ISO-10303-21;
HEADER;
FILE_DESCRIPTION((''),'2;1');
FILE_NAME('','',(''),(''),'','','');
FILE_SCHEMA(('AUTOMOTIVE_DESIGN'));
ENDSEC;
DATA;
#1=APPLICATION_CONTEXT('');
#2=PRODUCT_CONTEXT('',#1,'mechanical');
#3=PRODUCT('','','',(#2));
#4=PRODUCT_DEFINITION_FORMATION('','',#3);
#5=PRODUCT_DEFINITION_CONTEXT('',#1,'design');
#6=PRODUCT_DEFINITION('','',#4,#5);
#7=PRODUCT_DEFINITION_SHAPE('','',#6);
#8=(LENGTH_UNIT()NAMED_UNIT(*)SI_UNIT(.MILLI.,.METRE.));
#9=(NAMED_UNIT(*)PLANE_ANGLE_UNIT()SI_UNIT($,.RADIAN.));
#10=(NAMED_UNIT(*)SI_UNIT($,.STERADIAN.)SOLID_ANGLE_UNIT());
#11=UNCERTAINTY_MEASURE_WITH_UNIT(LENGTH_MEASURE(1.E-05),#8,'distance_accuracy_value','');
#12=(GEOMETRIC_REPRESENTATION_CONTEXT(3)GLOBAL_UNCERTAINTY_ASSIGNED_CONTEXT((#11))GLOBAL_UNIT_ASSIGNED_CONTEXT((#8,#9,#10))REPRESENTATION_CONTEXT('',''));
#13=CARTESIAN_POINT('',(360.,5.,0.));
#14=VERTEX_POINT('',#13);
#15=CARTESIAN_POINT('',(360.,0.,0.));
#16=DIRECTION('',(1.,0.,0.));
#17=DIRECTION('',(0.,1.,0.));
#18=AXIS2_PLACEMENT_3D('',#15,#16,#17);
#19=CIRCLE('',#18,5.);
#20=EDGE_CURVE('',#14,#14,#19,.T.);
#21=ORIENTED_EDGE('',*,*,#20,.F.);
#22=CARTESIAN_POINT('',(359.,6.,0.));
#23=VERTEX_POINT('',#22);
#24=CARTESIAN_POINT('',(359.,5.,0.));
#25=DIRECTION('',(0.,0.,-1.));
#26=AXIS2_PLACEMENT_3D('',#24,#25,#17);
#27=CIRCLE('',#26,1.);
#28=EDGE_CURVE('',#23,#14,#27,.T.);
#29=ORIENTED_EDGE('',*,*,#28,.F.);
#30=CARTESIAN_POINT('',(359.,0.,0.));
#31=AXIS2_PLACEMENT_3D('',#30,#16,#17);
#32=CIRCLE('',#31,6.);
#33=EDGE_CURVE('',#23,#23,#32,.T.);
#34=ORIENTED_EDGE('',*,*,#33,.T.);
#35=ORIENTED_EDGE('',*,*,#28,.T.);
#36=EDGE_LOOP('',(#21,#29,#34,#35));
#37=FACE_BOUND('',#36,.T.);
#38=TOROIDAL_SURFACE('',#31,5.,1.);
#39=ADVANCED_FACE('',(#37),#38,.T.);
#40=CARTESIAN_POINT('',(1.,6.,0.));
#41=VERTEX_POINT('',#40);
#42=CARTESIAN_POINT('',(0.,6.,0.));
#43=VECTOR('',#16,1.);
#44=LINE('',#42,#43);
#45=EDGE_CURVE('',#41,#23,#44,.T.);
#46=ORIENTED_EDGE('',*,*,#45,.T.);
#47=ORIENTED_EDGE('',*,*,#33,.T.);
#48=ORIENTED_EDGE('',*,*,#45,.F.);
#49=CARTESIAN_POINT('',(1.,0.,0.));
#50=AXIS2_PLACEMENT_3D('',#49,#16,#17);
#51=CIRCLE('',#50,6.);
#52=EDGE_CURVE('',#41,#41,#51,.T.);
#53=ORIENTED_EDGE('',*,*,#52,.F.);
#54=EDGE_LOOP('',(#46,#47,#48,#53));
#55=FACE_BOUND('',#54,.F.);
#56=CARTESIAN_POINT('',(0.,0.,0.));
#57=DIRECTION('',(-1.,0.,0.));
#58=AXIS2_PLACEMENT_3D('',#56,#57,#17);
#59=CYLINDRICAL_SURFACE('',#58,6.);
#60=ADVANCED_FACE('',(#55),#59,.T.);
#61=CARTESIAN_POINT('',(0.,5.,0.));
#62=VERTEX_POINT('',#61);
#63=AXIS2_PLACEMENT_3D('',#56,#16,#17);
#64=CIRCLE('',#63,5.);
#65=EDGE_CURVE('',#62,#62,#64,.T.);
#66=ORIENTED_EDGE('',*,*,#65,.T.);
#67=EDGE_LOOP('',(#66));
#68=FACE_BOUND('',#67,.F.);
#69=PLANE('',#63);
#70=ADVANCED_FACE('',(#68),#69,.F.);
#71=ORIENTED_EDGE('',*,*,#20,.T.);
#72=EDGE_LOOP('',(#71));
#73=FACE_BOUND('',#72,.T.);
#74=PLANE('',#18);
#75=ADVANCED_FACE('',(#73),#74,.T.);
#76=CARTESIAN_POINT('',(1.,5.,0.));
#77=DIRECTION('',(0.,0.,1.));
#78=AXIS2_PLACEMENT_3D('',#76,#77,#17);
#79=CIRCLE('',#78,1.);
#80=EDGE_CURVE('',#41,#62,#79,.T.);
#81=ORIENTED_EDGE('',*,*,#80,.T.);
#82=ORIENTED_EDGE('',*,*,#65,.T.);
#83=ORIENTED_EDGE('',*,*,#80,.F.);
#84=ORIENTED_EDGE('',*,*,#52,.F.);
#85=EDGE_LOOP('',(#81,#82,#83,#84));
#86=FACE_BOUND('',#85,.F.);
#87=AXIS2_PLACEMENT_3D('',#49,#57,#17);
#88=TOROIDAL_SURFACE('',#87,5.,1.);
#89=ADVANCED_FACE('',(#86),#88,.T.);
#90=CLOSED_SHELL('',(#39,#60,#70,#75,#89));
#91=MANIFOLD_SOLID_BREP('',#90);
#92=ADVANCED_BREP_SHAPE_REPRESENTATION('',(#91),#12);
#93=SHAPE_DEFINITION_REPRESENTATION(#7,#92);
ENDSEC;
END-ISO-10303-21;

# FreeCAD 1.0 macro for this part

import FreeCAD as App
import Part
import Sketcher

V = App.Vector
Q = App.Units.Quantity


def edges_at(feature, points):
    """Names of the edges that pass closest to the given points."""
    edges = feature.Shape.Edges
    near = lambda p: min(range(len(edges)), key=lambda i: edges[i].distToShape(Part.Vertex(*p))[0])
    return sorted({f"Edge{near(p) + 1}" for p in points})

doc = App.newDocument("Part")
body = doc.addObject("PartDesign::Body", "Body")

# Sketch on YZ plane
sketch1 = body.newObject("Sketcher::SketchObject", "Sketch")
sketch1.AttachmentSupport = (doc.getObject("YZ_Plane"), [""])
sketch1.MapMode = "FlatFace"
sketch1.addGeometry(Part.Circle(V(0, 0, 0), V(0, 0, 1), 6), False)
sketch1.addConstraint([
    Sketcher.Constraint("Coincident", 0, 3, -1, 1),
    Sketcher.Constraint("Diameter", 0, Q("12 mm")),
])
pad1 = body.newObject("PartDesign::Pad", "Pad")
pad1.Profile = sketch1
pad1.Length = 360
doc.recompute()

fillet = body.newObject("PartDesign::Fillet", "Fillet")
fillet.Base = (pad1, edges_at(pad1, [(360, -6, 0), (0, -6, 0)]))
fillet.Radius = 1

doc.recompute()
